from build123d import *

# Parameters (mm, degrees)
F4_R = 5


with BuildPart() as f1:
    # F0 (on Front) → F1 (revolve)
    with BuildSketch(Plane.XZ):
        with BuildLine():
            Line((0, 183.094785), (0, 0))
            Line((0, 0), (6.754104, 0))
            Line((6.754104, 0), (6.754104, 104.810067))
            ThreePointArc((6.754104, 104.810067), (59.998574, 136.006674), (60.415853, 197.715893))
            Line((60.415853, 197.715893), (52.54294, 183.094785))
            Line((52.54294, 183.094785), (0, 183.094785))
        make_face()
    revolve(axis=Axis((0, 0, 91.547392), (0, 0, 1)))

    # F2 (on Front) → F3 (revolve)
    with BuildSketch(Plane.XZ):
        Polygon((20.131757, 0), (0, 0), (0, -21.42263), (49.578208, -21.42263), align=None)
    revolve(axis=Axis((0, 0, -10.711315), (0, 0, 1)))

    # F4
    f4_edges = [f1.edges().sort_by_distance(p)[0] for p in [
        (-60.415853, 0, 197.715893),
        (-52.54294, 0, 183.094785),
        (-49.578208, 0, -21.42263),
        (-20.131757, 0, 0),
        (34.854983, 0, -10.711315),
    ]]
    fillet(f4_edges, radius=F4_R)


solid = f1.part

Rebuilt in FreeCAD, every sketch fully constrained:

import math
import FreeCAD as App
import Part
import Sketcher


def edges_at(feature, points):
    """Names of the edges that pass closest to the given points."""
    edges = feature.Shape.Edges
    near = lambda p: min(range(len(edges)), key=lambda i: edges[i].distToShape(Part.Vertex(*p))[0])
    return sorted({f"Edge{near(p) + 1}" for p in points})

doc = App.newDocument("Part")
params = doc.addObject("Spreadsheet::Sheet", "Params")
for row, (alias, value) in enumerate([
    ("revolution_angle", "360 deg"),
    ("revolution2_angle", "360 deg"),
    ("fillet_radius", "5 mm"),
], start=1):
    params.set(f"A{row}", alias)
    params.set(f"B{row}", "=" + value)
    params.setAlias(f"B{row}", alias)

body = doc.addObject("PartDesign::Body", "Body")

# Sketch on XZ plane
sketch1 = doc.addObject("Sketcher::SketchObject", "Sketch")
body.addObject(sketch1)
sketch1.AttachmentSupport = (doc.XZ_Plane, [""])
sketch1.MapMode = "FlatFace"
sketch1.addGeometry([
    Part.LineSegment(App.Vector(0, 183, 0), App.Vector(0, 0, 0)),  # 0
    Part.LineSegment(App.Vector(0, 0, 0), App.Vector(7, 0, 0)),  # 1
    Part.LineSegment(App.Vector(7, 0, 0), App.Vector(7, 105, 0)),  # 2
    Part.ArcOfCircle(Part.Circle(App.Vector(6, 167, 0), App.Vector(0, 0, 1), 62), math.radians(-89), math.radians(29)),  # 3
    Part.LineSegment(App.Vector(60, 198, 0), App.Vector(53, 183, 0)),  # 4
    Part.LineSegment(App.Vector(53, 183, 0), App.Vector(0, 183, 0)),  # 5
], False)
sketch1.addConstraint([
    Sketcher.Constraint("Coincident", 0, 2, 1, 1),
    Sketcher.Constraint("Coincident", 1, 2, 2, 1),
    Sketcher.Constraint("Coincident", 2, 2, 3, 1),
    Sketcher.Constraint("Coincident", 3, 2, 4, 1),
    Sketcher.Constraint("Coincident", 4, 2, 5, 1),
    Sketcher.Constraint("Coincident", 5, 2, 0, 1),
    Sketcher.Constraint("Vertical", 0),
    Sketcher.Constraint("Horizontal", 1),
    Sketcher.Constraint("Vertical", 2),
    Sketcher.Constraint("Horizontal", 5),
    Sketcher.Constraint("Coincident", 0, 2, -1, 1),
    Sketcher.Constraint("Radius", 3, 62.423402),
    Sketcher.Constraint("DistanceX", 5, 2, 5, 1, 52.54294),
    Sketcher.Constraint("DistanceX", 3, 3, 1, 2, 0.810101),
    Sketcher.Constraint("Distance", 4, 16.60601),
    Sketcher.Constraint("DistanceX", 1, 1, 1, 2, 6.754104),
    Sketcher.Constraint("DistanceY", 0, 2, 0, 1, 183.094785),
    Sketcher.Constraint("DistanceY", 2, 1, 2, 2, 104.810067),
])
revolution = doc.addObject("PartDesign::Revolution", "Revolution")
body.addObject(revolution)
revolution.Profile = sketch1
revolution.ReferenceAxis = (sketch1, ["V_Axis"])
revolution.setExpression("Angle", "Params.revolution_angle")

# Sketch on XZ plane
sketch2 = doc.addObject("Sketcher::SketchObject", "Sketch001")
body.addObject(sketch2)
sketch2.AttachmentSupport = (doc.XZ_Plane, [""])
sketch2.MapMode = "FlatFace"
sketch2.addGeometry([
    Part.LineSegment(App.Vector(20, 0, 0), App.Vector(0, 0, 0)),
    Part.LineSegment(App.Vector(0, 0, 0), App.Vector(0, -21, 0)),
    Part.LineSegment(App.Vector(0, -21, 0), App.Vector(50, -21, 0)),
    Part.LineSegment(App.Vector(50, -21, 0), App.Vector(20, 0, 0)),
], False)
sketch2.addConstraint([
    Sketcher.Constraint("Coincident", 0, 2, 1, 1),
    Sketcher.Constraint("Coincident", 1, 2, 2, 1),
    Sketcher.Constraint("Coincident", 2, 2, 3, 1),
    Sketcher.Constraint("Coincident", 3, 2, 0, 1),
    Sketcher.Constraint("Horizontal", 0),
    Sketcher.Constraint("Vertical", 1),
    Sketcher.Constraint("Horizontal", 2),
    Sketcher.Constraint("Coincident", 0, 2, -1, 1),
    Sketcher.Constraint("DistanceY", 1, 2, 1, 1, 21.42263),
    Sketcher.Constraint("DistanceX", 0, 2, 0, 1, 20.131757),
    Sketcher.Constraint("DistanceX", 2, 1, 2, 2, 49.578208),
])
revolution2 = doc.addObject("PartDesign::Revolution", "Revolution001")
body.addObject(revolution2)
revolution2.Profile = sketch2
revolution2.ReferenceAxis = (sketch2, ["V_Axis"])
revolution2.setExpression("Angle", "Params.revolution2_angle")
doc.recompute()

fillet = doc.addObject("PartDesign::Fillet", "Fillet")
body.addObject(fillet)
fillet.Base = (revolution2, edges_at(revolution2, [
    (-60.416, 0, 197.716),
    (-52.543, 0, 183.095),
    (-49.578, 0, -21.423),
    (-20.132, 0, 0),
    (34.855, 0, -10.711),
]))
fillet.setExpression("Radius", "Params.fillet_radius")

doc.recompute()
